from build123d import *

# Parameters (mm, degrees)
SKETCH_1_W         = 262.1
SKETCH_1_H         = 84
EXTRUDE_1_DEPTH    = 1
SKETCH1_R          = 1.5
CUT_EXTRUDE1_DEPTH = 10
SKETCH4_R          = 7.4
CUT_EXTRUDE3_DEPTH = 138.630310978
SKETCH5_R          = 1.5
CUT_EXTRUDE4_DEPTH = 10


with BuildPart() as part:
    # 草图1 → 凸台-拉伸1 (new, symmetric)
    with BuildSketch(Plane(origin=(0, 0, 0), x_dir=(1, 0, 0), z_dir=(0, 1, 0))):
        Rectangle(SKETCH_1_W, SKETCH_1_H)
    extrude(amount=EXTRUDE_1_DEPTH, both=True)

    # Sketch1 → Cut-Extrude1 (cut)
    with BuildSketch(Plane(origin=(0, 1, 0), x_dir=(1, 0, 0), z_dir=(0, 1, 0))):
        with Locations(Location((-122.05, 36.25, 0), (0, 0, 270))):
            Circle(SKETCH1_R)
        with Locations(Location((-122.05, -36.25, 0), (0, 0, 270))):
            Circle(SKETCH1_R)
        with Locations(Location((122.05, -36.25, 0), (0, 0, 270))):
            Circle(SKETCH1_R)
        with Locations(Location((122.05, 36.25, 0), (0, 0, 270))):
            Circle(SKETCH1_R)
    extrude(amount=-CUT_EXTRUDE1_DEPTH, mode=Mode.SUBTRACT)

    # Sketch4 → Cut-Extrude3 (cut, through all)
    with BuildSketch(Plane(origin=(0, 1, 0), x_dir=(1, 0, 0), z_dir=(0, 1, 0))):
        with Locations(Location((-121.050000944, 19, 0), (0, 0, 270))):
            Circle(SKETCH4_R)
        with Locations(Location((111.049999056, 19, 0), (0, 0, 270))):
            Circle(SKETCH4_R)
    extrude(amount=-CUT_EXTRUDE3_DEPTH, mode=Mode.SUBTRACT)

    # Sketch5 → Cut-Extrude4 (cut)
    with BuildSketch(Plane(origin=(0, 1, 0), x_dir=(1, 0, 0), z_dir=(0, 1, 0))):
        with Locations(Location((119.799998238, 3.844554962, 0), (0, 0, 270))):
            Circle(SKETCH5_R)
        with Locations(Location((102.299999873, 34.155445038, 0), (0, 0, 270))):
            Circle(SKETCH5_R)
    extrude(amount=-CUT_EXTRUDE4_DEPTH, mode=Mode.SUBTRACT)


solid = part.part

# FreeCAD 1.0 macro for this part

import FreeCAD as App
import Part
import Sketcher
from FreeCAD import Vector
Q = App.Units.Quantity


def add_polygon(sketch, points):
    """Adds a closed chain of lines whose ends are joined by coincident constraints."""
    first, n = sketch.GeometryCount, len(points)
    for a, b in zip(points, points[1:] + points[:1]):
        sketch.addGeometry(Part.LineSegment(App.Vector(*a, 0), App.Vector(*b, 0)), False)
    for i in range(n):
        sketch.addConstraint(Sketcher.Constraint("Coincident", first + i, 2, first + (i + 1) % n, 1))

doc = App.newDocument("Part")
body = doc.addObject("PartDesign::Body", "Body")

# Sketch on XZ plane
sketch1 = doc.addObject("Sketcher::SketchObject", "Sketch")
body.addObject(sketch1)
sketch1.AttachmentSupport = (doc.XZ_Plane, [""])
sketch1.MapMode = "FlatFace"
add_polygon(sketch1, [(-131, -42), (-131, 42), (131, 42), (131, -42)])  # lines 0-3
sketch1.addConstraint([
    Sketcher.Constraint("Vertical", 0),
    Sketcher.Constraint("Horizontal", 1),
    Sketcher.Constraint("Vertical", 2),
    Sketcher.Constraint("Horizontal", 3),
    Sketcher.Constraint("Symmetric", 0, 2, 2, 2, -1, 1),
    Sketcher.Constraint("DistanceY", 0, 1, 0, 2, Q("84 mm")),
    Sketcher.Constraint("DistanceX", 1, 1, 1, 2, Q("262.1 mm")),
])
pad1 = doc.addObject("PartDesign::Pad", "Pad")
body.addObject(pad1)
pad1.Profile = sketch1
pad1.Length = 2
pad1.Midplane = True

# Sketch on XZ plane
sketch2 = doc.addObject("Sketcher::SketchObject", "Sketch001")
body.addObject(sketch2)
sketch2.AttachmentSupport = (doc.XZ_Plane, [""])
sketch2.MapMode = "FlatFace"
sketch2.AttachmentOffset = App.Placement(Vector(0, 0, -1), App.Rotation())
sketch2.addGeometry([
    Part.Circle(Vector(-122, -36.2, 0), Vector(0, 0, 1), 1.5),
    Part.Circle(Vector(-122, 36.2, 0), Vector(0, 0, 1), 1.5),
    Part.Circle(Vector(122, 36.2, 0), Vector(0, 0, 1), 1.5),
    Part.Circle(Vector(122, -36.2, 0), Vector(0, 0, 1), 1.5),
], False)
sketch2.addConstraint([
    Sketcher.Constraint("Equal", 0, 1),
    Sketcher.Constraint("Equal", 1, 2),
    Sketcher.Constraint("Equal", 2, 3),
    Sketcher.Constraint("Symmetric", 0, 3, 2, 3, -1, 1),
    Sketcher.Constraint("Symmetric", 1, 3, 3, 3, -1, 1),
    Sketcher.Constraint("Symmetric", 1, 3, 2, 3, -2),
    Sketcher.Constraint("Diameter", 0, Q("3 mm")),
    Sketcher.Constraint("DistanceY", 0, 3, 1, 3, Q("72.5 mm")),
    Sketcher.Constraint("DistanceX", 1, 3, 2, 3, Q("244.1 mm")),
])
pocket1 = doc.addObject("PartDesign::Pocket", "Pocket")
body.addObject(pocket1)
pocket1.Profile = sketch2
pocket1.Length = 10
pocket1.Reversed = True

# Sketch on XZ plane
sketch3 = doc.addObject("Sketcher::SketchObject", "Sketch002")
body.addObject(sketch3)
sketch3.AttachmentSupport = (doc.XZ_Plane, [""])
sketch3.MapMode = "FlatFace"
sketch3.AttachmentOffset = App.Placement(Vector(0, 0, -1), App.Rotation())
sketch3.addGeometry([
    Part.Circle(Vector(-121, -19, 0), Vector(0, 0, 1), 7),
    Part.Circle(Vector(111, -19, 0), Vector(0, 0, 1), 7),
], False)
sketch3.addConstraint([
    Sketcher.Constraint("Equal", 0, 1),
    Sketcher.Constraint("Horizontal", 0, 3, 1, 3),
    Sketcher.Constraint("Diameter", 0, Q("14.8 mm")),
    Sketcher.Constraint("DistanceY", 0, 3, -1, 1, Q("19 mm")),
    Sketcher.Constraint("DistanceX", 0, 3, 1, 3, Q("232.1 mm")),
    Sketcher.Constraint("DistanceX", 0, 3, -1, 1, Q("121.050001 mm")),
])
pocket2 = doc.addObject("PartDesign::Pocket", "Pocket001")
body.addObject(pocket2)
pocket2.Profile = sketch3
pocket2.Type = "ThroughAll"
pocket2.Reversed = True

# Sketch on XZ plane
sketch4 = doc.addObject("Sketcher::SketchObject", "Sketch003")
body.addObject(sketch4)
sketch4.AttachmentSupport = (doc.XZ_Plane, [""])
sketch4.MapMode = "FlatFace"
sketch4.AttachmentOffset = App.Placement(Vector(0, 0, -1), App.Rotation())
sketch4.addGeometry([
    Part.Circle(Vector(119.8, -3.8, 0), Vector(0, 0, 1), 1.5),
    Part.Circle(Vector(102.3, -34.2, 0), Vector(0, 0, 1), 1.5),
], False)
sketch4.addConstraint([
    Sketcher.Constraint("Equal", 0, 1),
    Sketcher.Constraint("Diameter", 0, Q("3 mm")),
    Sketcher.Constraint("DistanceX", -1, 1, 0, 3, Q("119.799998 mm")),
    Sketcher.Constraint("DistanceX", -1, 1, 1, 3, Q("102.3 mm")),
    Sketcher.Constraint("DistanceY", 1, 3, 0, 3, Q("30.31089 mm")),
    Sketcher.Constraint("DistanceY", 0, 3, -1, 1, Q("3.844555 mm")),
])
pocket3 = doc.addObject("PartDesign::Pocket", "Pocket002")
body.addObject(pocket3)
pocket3.Profile = sketch4
pocket3.Length = 10
pocket3.Reversed = True

doc.recompute()
